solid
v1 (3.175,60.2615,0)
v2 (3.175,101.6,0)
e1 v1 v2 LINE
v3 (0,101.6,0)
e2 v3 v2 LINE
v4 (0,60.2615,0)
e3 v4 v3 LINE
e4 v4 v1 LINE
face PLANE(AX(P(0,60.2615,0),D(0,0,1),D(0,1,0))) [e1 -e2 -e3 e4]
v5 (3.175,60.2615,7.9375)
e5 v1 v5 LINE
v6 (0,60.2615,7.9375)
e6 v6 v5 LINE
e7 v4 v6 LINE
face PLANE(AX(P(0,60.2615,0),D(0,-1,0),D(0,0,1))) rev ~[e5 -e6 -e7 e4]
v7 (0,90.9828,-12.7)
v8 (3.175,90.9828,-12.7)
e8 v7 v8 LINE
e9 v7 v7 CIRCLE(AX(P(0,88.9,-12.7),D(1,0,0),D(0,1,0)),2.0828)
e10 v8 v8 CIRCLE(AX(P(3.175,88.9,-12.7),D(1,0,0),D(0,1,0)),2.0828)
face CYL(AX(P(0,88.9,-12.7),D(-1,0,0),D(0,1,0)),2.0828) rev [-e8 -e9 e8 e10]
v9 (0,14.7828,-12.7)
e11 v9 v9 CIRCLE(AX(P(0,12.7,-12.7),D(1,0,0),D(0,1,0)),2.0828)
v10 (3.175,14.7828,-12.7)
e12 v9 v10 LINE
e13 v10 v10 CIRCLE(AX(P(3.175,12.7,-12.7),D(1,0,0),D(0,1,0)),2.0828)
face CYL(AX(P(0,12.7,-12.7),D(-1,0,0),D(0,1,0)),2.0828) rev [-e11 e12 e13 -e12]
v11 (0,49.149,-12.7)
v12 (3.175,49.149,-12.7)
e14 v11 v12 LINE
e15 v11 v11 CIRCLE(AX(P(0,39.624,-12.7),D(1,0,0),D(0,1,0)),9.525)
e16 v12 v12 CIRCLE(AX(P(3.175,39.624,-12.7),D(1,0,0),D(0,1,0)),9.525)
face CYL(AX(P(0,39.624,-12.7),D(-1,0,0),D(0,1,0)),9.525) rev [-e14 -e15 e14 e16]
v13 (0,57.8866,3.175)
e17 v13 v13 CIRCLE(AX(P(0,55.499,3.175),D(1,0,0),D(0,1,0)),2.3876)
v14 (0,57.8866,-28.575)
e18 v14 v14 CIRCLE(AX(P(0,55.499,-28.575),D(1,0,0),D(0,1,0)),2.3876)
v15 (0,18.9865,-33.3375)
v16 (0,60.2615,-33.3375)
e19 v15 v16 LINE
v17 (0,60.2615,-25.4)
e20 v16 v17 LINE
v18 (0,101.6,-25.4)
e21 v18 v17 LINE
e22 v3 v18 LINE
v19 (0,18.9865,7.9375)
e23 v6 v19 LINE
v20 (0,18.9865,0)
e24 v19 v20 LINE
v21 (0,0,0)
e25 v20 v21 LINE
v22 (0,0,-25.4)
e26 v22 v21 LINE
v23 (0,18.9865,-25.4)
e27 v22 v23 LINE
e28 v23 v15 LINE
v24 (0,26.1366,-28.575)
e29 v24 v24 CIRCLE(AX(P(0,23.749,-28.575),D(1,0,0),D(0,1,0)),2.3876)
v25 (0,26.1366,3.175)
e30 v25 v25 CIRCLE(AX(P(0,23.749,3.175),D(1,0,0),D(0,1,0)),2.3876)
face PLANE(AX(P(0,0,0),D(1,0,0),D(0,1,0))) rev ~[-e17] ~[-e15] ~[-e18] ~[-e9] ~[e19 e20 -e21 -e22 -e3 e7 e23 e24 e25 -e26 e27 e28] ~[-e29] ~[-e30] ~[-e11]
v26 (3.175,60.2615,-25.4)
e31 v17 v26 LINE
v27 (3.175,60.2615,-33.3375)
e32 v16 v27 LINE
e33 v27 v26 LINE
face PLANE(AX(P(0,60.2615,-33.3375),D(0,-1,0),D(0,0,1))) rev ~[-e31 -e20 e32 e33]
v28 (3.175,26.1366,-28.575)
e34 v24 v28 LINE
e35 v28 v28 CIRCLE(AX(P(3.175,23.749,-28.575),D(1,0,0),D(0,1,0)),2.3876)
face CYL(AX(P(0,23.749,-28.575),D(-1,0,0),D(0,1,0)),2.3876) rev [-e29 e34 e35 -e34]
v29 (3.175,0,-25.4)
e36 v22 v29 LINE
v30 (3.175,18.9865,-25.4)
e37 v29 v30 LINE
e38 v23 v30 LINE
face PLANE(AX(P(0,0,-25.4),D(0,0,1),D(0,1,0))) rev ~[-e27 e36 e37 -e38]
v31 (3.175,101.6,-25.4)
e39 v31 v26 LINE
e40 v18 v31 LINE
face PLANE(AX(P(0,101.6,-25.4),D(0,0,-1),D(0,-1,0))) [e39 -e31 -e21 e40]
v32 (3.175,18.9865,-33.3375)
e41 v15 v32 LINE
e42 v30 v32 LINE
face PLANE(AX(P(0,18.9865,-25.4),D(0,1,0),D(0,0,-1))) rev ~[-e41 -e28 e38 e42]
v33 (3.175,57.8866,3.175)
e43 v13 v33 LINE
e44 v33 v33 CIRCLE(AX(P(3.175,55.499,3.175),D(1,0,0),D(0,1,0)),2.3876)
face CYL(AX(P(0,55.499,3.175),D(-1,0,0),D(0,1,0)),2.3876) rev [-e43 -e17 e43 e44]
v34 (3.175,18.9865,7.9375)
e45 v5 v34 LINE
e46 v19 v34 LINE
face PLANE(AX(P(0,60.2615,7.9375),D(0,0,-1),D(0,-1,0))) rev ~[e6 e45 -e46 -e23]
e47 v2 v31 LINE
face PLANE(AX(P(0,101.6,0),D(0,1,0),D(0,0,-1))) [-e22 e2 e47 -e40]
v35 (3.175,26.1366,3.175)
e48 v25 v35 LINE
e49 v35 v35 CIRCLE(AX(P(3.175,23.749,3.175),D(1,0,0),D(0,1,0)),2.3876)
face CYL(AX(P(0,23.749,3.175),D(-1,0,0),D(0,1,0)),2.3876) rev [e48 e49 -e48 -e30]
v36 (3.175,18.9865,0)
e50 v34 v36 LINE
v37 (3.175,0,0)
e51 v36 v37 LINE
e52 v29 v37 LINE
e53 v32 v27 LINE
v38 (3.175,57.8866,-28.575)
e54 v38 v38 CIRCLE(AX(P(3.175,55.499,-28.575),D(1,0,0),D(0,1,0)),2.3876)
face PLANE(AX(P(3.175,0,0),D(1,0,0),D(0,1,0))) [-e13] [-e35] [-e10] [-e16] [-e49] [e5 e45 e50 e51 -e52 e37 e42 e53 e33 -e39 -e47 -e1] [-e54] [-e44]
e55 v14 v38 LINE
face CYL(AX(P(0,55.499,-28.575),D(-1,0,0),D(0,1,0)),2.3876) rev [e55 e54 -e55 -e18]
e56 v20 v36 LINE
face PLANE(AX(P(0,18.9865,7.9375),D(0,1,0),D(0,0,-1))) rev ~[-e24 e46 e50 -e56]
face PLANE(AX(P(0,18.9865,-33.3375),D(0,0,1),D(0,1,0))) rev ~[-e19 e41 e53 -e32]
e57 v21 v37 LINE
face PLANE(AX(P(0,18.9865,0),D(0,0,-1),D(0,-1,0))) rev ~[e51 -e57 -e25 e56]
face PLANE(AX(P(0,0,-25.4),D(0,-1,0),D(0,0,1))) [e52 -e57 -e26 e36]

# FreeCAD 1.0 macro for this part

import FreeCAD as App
import Part
import Sketcher
Q = App.Units.Quantity


def add_polygon(sketch, points):
    """Adds a closed chain of lines whose ends are joined by coincident constraints."""
    first, n = sketch.GeometryCount, len(points)
    for a, b in zip(points, points[1:] + points[:1]):
        sketch.addGeometry(Part.LineSegment(App.Vector(*a, 0), App.Vector(*b, 0)), False)
    for i in range(n):
        sketch.addConstraint(Sketcher.Constraint("Coincident", first + i, 2, first + (i + 1) % n, 1))

doc = App.newDocument("Part")
body = doc.addObject("PartDesign::Body", "Body")

sketch1 = body.newObject("Sketcher::SketchObject", "Sketch")
sketch1.AttachmentSupport = (doc.getObject("YZ_Plane"), [""])
sketch1.MapMode = "FlatFace"
add_polygon(sketch1, [(101.6, -25.4), (101.6, 0), (60.2615, 0), (60.2615, 7.9375), (18.9865, 7.9375), (18.9865, 0), (0, 0), (0, -25.4), (18.9865, -25.4), (18.9865, -33.3375), (60.2615, -33.3375), (60.2615, -25.4)])
sketch1.addGeometry(Part.Circle(App.Vector(23.749, -28.575, 0), App.Vector(0, 0, 1), 2.3876), False)
sketch1.addGeometry(Part.Circle(App.Vector(55.499, -28.575, 0), App.Vector(0, 0, 1), 2.3876), False)
sketch1.addGeometry(Part.Circle(App.Vector(12.7, -12.7, 0), App.Vector(0, 0, 1), 2.0828), False)
sketch1.addGeometry(Part.Circle(App.Vector(39.624, -12.7, 0), App.Vector(0, 0, 1), 9.525), False)
sketch1.addGeometry(Part.Circle(App.Vector(23.749, 3.175, 0), App.Vector(0, 0, 1), 2.3876), False)
sketch1.addGeometry(Part.Circle(App.Vector(88.9, -12.7, 0), App.Vector(0, 0, 1), 2.0828), False)
sketch1.addGeometry(Part.Circle(App.Vector(55.499, 3.175, 0), App.Vector(0, 0, 1), 2.3876), False)
sketch1.addConstraint(Sketcher.Constraint("Vertical", 0))
sketch1.addConstraint(Sketcher.Constraint("Horizontal", 1))
sketch1.addConstraint(Sketcher.Constraint("Vertical", 2))
sketch1.addConstraint(Sketcher.Constraint("Horizontal", 3))
sketch1.addConstraint(Sketcher.Constraint("Vertical", 4))
sketch1.addConstraint(Sketcher.Constraint("Horizontal", 5))
sketch1.addConstraint(Sketcher.Constraint("Vertical", 6))
sketch1.addConstraint(Sketcher.Constraint("Horizontal", 7))
sketch1.addConstraint(Sketcher.Constraint("Vertical", 8))
sketch1.addConstraint(Sketcher.Constraint("Horizontal", 9))
sketch1.addConstraint(Sketcher.Constraint("Vertical", 10))
sketch1.addConstraint(Sketcher.Constraint("Horizontal", 11))
sketch1.addConstraint(Sketcher.Constraint("Coincident", 5, 2, -1, 1))
sketch1.addConstraint(Sketcher.Constraint("Equal", 12, 13))
sketch1.addConstraint(Sketcher.Constraint("Equal", 13, 16))
sketch1.addConstraint(Sketcher.Constraint("Equal", 14, 17))
sketch1.addConstraint(Sketcher.Constraint("Equal", 16, 18))
sketch1.addConstraint(Sketcher.Constraint("PointOnObject", 0, 2, -1))
sketch1.addConstraint(Sketcher.Constraint("Horizontal", 12, 3, 13, 3))
sketch1.addConstraint(Sketcher.Constraint("Horizontal", 14, 3, 15, 3))
sketch1.addConstraint(Sketcher.Constraint("Horizontal", 15, 3, 17, 3))
sketch1.addConstraint(Sketcher.Constraint("Horizontal", 16, 3, 18, 3))
sketch1.addConstraint(Sketcher.Constraint("Horizontal", 7, 2, 10, 2))
sketch1.addConstraint(Sketcher.Constraint("Vertical", 12, 3, 16, 3))
sketch1.addConstraint(Sketcher.Constraint("Vertical", 13, 3, 18, 3))
sketch1.addConstraint(Sketcher.Constraint("Vertical", 4, 2, 7, 2))
sketch1.addConstraint(Sketcher.Constraint("Vertical", 2, 2, 9, 2))
sketch1.addConstraint(Sketcher.Constraint("Equal", 4, 8))
sketch1.addConstraint(Sketcher.Constraint("Diameter", 15, Q("0.75 in")))
sketch1.addConstraint(Sketcher.Constraint("DistanceY", 0, 1, 0, 2, Q("1 in")))
sketch1.addConstraint(Sketcher.Constraint("Diameter", 12, Q("0.188 in")))
sketch1.addConstraint(Sketcher.Constraint("Diameter", 14, Q("0.164 in")))
sketch1.addConstraint(Sketcher.Constraint("DistanceX", -1, 1, 0, 2, Q("4 in")))
sketch1.addConstraint(Sketcher.Constraint("DistanceX", -1, 1, 14, 3, Q("0.5 in")))
sketch1.addConstraint(Sketcher.Constraint("DistanceY", 14, 3, -1, 1, Q("0.5 in")))
sketch1.addConstraint(Sketcher.Constraint("DistanceX", 17, 3, 0, 2, Q("0.5 in")))
sketch1.addConstraint(Sketcher.Constraint("DistanceX", 3, 2, 3, 1, Q("1.625 in")))
sketch1.addConstraint(Sketcher.Constraint("DistanceX", 12, 3, 13, 3, Q("1.25 in")))
sketch1.addConstraint(Sketcher.Constraint("DistanceY", 12, 3, 16, 3, Q("1.25 in")))
sketch1.addConstraint(Sketcher.Constraint("DistanceX", 15, 3, 0, 2, Q("2.44 in")))
sketch1.addConstraint(Sketcher.Constraint("DistanceX", 18, 3, 1, 2, Q("0.1875 in")))
sketch1.addConstraint(Sketcher.Constraint("DistanceX", 15, 3, 1, 2, Q("0.8125 in")))
sketch1.addConstraint(Sketcher.Constraint("DistanceY", 18, 3, 2, 2, Q("0.1875 in")))
sketch1.addConstraint(Sketcher.Constraint("DistanceY", 15, 3, 2, 2, Q("0.8125 in")))
pad1 = body.newObject("PartDesign::Pad", "Pad")
pad1.Profile = sketch1
pad1.Length = Q("0.125 in")

doc.recompute()
